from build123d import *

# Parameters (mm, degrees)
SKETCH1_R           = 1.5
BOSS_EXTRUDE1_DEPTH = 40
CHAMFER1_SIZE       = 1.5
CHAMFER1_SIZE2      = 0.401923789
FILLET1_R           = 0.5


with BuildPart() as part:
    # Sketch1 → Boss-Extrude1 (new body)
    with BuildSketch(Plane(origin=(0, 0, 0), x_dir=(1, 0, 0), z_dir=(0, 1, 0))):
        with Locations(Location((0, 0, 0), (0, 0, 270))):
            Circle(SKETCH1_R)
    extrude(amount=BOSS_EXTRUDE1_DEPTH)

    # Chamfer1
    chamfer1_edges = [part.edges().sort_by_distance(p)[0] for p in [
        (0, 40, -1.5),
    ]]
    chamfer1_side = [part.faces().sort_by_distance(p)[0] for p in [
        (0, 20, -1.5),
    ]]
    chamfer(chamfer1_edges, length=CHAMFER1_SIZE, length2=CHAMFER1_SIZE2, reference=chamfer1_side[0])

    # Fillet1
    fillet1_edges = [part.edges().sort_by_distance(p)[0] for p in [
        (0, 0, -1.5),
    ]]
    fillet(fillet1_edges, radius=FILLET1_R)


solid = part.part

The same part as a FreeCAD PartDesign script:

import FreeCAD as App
import Part
import Sketcher

V = App.Vector
Q = App.Units.Quantity


def edges_at(feature, points):
    """Names of the edges that pass closest to the given points."""
    edges = feature.Shape.Edges
    near = lambda p: min(range(len(edges)), key=lambda i: edges[i].distToShape(Part.Vertex(*p))[0])
    return sorted({f"Edge{near(p) + 1}" for p in points})

doc = App.newDocument("Part")
body = doc.addObject("PartDesign::Body", "Body")

sketch1 = body.newObject("Sketcher::SketchObject", "Sketch")
sketch1.AttachmentSupport = (doc.getObject("XZ_Plane"), [""])
sketch1.MapMode = "FlatFace"
sketch1.addGeometry(Part.Circle(V(0, 0, 0), V(0, 0, 1), 1.5), False)
sketch1.addConstraint([
    Sketcher.Constraint("Coincident", 0, 3, -1, 1),
    Sketcher.Constraint("Diameter", 0, Q("3 mm")),
])
pad1 = body.newObject("PartDesign::Pad", "Pad")
pad1.Profile = sketch1
pad1.Length = 40
pad1.Reversed = True
doc.recompute()

chamfer = body.newObject("PartDesign::Chamfer", "Chamfer")
chamfer.Base = (pad1, edges_at(pad1, [(0, 40, -1.5)]))
chamfer.ChamferType = "Two distances"
chamfer.Size = 1.5
chamfer.Size2 = 0.401924
doc.recompute()

fillet = body.newObject("PartDesign::Fillet", "Fillet")
fillet.Base = (chamfer, edges_at(chamfer, [(0, 0, -1.5)]))
fillet.Radius = 0.5

doc.recompute()
